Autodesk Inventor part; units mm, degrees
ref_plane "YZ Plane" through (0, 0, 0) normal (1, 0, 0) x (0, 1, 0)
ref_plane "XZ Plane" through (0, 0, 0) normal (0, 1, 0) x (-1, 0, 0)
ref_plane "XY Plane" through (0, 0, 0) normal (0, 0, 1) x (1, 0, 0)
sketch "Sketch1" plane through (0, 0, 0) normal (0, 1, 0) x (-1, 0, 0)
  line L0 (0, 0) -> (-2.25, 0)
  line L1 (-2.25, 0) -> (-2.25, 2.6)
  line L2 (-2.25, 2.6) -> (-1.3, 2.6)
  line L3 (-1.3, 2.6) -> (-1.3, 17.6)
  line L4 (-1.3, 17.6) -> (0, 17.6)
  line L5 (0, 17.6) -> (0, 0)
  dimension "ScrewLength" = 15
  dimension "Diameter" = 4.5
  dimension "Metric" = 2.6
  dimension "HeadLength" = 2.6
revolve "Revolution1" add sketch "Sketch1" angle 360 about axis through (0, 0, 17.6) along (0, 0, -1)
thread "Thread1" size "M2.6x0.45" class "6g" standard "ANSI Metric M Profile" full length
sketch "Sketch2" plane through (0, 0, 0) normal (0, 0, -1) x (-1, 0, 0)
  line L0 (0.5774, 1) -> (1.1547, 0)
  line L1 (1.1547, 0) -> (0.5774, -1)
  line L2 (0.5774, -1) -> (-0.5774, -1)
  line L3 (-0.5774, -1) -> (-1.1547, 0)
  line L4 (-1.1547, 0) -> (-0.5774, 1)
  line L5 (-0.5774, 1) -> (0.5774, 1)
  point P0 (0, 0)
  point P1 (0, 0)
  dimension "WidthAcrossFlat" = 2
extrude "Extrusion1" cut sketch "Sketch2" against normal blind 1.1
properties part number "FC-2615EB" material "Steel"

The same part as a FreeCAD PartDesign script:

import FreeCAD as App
import Part
import Sketcher

V = App.Vector
Q = App.Units.Quantity


def add_polygon(sketch, points):
    """Adds a closed chain of lines whose ends are joined by coincident constraints."""
    first, n = sketch.GeometryCount, len(points)
    for a, b in zip(points, points[1:] + points[:1]):
        sketch.addGeometry(Part.LineSegment(App.Vector(*a, 0), App.Vector(*b, 0)), False)
    for i in range(n):
        sketch.addConstraint(Sketcher.Constraint("Coincident", first + i, 2, first + (i + 1) % n, 1))

doc = App.newDocument("Part")
body = doc.addObject("PartDesign::Body", "Body")

sketch1 = doc.addObject("Sketcher::SketchObject", "Sketch")
body.addObject(sketch1)
sketch1.AttachmentSupport = (doc.XZ_Plane, [""])
sketch1.MapMode = "FlatFace"
add_polygon(sketch1, [(2.2, 0), (0, 0), (0, 17.6), (1.3, 17.6), (1.3, 2.6), (2.2, 2.6)])
sketch1.addConstraint([
    Sketcher.Constraint("Horizontal", 0),
    Sketcher.Constraint("Vertical", 1),
    Sketcher.Constraint("Horizontal", 2),
    Sketcher.Constraint("Vertical", 3),
    Sketcher.Constraint("Horizontal", 4),
    Sketcher.Constraint("Vertical", 5),
    Sketcher.Constraint("Coincident", 0, 2, -1, 1),
    Sketcher.Constraint("DistanceY", 3, 2, 3, 1, Q("15 mm")),
    Sketcher.Constraint("DistanceY", 5, 2, 5, 1, Q("2.6 mm")),
    Sketcher.Constraint("DistanceX", 2, 1, 2, 2, Q("1.3 mm")),
    Sketcher.Constraint("DistanceX", 0, 2, 0, 1, Q("2.25 mm")),
])
revolution = doc.addObject("PartDesign::Revolution", "Revolution")
body.addObject(revolution)
revolution.Profile = sketch1
revolution.ReferenceAxis = (sketch1, ["V_Axis"])
revolution.Angle = 360

sketch2 = doc.addObject("Sketcher::SketchObject", "Sketch001")
body.addObject(sketch2)
sketch2.AttachmentSupport = (doc.XY_Plane, [""])
sketch2.MapMode = "FlatFace"
add_polygon(sketch2, [(-1.2, 0), (-0.6, 1), (0.6, 1), (1.2, 0), (0.6, -1), (-0.6, -1)])
sketch2.addConstraint([
    Sketcher.Constraint("Horizontal", 1),
    Sketcher.Constraint("Horizontal", 4),
    Sketcher.Constraint("Symmetric", 0, 2, 3, 2, -1, 1),
    Sketcher.Constraint("Symmetric", 2, 2, 5, 2, -1, 1),
    Sketcher.Constraint("PointOnObject", 2, 2, -1),
    Sketcher.Constraint("Parallel", 2, 5),
    Sketcher.Constraint("Vertical", 1, 2, 3, 2),
    Sketcher.Constraint("DistanceY", 3, 2, 1, 2, Q("2 mm")),
    Sketcher.Constraint("DistanceX", 1, 1, 1, 2, Q("1.1548 mm")),
    Sketcher.Constraint("DistanceX", 0, 2, 2, 2, Q("1.732 mm")),
])
pocket1 = doc.addObject("PartDesign::Pocket", "Pocket")
body.addObject(pocket1)
pocket1.Profile = sketch2
pocket1.Length = 1.1
pocket1.Reversed = True

doc.recompute()
